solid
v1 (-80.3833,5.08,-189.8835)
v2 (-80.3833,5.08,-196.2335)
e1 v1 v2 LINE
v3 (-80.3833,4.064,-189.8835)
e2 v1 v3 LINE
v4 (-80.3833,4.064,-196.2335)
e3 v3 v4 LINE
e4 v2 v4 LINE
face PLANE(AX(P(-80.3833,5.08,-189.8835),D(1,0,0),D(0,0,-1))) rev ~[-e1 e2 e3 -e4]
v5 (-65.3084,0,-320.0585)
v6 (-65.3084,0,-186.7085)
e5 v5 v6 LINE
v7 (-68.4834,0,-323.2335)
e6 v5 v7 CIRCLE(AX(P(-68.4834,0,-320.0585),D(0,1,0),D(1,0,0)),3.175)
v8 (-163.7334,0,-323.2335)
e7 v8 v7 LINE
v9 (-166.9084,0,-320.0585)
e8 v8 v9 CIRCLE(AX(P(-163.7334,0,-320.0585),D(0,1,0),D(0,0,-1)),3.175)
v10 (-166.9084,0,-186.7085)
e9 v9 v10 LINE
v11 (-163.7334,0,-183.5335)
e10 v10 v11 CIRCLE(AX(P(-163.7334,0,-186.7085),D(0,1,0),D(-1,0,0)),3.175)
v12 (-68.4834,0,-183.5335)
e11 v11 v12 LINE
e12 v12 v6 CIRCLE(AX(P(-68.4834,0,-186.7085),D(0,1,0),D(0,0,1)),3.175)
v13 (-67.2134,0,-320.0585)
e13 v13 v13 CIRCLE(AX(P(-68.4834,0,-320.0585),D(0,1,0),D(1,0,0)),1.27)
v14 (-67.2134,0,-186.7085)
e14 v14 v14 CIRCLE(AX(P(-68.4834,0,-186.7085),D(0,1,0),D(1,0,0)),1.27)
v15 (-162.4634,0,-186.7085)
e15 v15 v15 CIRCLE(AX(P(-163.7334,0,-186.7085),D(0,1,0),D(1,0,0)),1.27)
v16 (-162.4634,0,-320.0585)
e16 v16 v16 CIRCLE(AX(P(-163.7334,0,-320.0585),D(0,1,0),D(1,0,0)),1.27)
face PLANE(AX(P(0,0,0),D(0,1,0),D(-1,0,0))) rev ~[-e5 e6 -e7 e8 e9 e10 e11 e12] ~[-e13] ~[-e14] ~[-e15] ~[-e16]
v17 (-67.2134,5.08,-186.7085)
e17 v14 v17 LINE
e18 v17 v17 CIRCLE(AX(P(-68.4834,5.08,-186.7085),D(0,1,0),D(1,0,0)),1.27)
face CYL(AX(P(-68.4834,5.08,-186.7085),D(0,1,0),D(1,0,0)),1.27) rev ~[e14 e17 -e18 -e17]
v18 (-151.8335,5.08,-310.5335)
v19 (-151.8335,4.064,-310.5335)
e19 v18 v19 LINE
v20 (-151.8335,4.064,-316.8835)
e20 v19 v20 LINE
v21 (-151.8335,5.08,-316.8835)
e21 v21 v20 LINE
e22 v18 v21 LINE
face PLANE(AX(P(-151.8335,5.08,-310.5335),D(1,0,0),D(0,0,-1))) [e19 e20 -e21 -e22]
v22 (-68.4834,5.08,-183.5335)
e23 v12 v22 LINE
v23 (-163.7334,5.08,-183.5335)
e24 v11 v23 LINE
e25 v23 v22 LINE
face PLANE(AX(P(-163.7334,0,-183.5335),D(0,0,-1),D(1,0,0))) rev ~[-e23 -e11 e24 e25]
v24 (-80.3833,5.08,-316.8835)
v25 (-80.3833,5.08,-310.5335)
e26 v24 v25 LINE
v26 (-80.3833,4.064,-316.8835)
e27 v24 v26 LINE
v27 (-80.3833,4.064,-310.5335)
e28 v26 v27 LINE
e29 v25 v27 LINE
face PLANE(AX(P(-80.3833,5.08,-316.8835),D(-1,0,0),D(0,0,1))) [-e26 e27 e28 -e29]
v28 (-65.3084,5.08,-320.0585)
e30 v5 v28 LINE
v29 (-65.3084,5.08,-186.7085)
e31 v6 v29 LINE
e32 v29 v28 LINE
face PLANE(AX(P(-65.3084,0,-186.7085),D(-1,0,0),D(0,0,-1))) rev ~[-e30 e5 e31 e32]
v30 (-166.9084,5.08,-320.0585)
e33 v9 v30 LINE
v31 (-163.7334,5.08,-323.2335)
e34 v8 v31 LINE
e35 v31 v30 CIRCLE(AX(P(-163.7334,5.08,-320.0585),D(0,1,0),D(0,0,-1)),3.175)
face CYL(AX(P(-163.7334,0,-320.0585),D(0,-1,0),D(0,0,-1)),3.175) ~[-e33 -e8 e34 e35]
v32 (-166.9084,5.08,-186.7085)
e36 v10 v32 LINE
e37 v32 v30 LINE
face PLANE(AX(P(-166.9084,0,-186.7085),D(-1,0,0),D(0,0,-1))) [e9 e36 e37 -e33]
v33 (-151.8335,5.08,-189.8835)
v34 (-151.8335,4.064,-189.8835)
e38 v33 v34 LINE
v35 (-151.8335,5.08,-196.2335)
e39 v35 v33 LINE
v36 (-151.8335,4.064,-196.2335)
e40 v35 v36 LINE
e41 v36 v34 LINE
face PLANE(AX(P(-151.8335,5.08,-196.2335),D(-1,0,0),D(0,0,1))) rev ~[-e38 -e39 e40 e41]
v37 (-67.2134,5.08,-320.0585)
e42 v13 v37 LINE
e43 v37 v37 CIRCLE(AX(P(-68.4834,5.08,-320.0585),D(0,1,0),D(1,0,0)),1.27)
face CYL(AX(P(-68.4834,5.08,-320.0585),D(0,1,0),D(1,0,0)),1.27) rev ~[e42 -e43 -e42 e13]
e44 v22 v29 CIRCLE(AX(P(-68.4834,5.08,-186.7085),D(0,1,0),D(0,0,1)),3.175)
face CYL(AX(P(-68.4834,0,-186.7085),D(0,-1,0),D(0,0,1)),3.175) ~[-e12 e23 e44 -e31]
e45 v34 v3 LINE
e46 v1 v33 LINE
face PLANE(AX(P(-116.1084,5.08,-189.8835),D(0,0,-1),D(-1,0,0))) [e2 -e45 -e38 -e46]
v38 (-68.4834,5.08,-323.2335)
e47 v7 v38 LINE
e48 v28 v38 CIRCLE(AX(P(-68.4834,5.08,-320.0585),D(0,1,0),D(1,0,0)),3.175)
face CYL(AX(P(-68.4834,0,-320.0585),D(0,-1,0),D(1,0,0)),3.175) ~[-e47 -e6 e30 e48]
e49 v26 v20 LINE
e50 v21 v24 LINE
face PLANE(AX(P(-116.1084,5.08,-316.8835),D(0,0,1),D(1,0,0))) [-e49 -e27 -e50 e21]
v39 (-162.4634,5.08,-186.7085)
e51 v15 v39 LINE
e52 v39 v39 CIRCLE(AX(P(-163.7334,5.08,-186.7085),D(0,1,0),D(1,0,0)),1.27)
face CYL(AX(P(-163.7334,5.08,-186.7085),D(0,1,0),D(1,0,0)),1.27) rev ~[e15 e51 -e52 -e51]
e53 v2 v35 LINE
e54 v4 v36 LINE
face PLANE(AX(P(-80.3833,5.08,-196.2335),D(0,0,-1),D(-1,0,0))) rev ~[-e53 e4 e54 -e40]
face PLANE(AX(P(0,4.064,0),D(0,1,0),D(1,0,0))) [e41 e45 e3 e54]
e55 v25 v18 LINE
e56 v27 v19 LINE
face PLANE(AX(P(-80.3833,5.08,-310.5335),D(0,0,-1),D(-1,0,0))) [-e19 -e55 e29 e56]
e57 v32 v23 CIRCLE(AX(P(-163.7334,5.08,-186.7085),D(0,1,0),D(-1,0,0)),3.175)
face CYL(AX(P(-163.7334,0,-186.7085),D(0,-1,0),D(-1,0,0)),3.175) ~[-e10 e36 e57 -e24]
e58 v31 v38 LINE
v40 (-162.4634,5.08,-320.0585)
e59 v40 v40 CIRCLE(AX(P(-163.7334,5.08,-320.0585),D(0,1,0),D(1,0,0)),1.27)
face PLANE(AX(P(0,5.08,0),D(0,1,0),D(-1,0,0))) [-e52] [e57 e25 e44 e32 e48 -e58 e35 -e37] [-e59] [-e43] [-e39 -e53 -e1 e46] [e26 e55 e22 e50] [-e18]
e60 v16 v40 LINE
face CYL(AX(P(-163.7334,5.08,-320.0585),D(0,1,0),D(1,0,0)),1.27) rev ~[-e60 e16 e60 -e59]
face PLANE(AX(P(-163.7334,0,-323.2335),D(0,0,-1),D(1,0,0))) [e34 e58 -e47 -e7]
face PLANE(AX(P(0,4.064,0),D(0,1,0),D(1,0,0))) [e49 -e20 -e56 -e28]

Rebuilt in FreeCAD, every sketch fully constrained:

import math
import FreeCAD as App
import Part
import Sketcher
Q = App.Units.Quantity

doc = App.newDocument("Part")
body = doc.addObject("PartDesign::Body", "Body")

# Sketch on XZ plane
sketch1 = body.newObject("Sketcher::SketchObject", "Sketch")
sketch1.AttachmentSupport = (doc.getObject("XZ_Plane"), [""])
sketch1.MapMode = "FlatFace"
sketch1.addGeometry([
    Part.ArcOfCircle(Part.Circle(App.Vector(-163.7334, -186.7085, 0), App.Vector(0, 0, 1), 3.175), math.radians(90), math.radians(180)),  # 0
    Part.LineSegment(App.Vector(-163.7334, -183.5335, 0), App.Vector(-68.4834, -183.5335, 0)),  # 1
    Part.ArcOfCircle(Part.Circle(App.Vector(-68.4834, -186.7085, 0), App.Vector(0, 0, 1), 3.175), math.radians(0), math.radians(90)),  # 2
    Part.LineSegment(App.Vector(-65.3084, -186.7085, 0), App.Vector(-65.3084, -320.0585, 0)),  # 3
    Part.ArcOfCircle(Part.Circle(App.Vector(-68.4834, -320.0585, 0), App.Vector(0, 0, 1), 3.175), math.radians(-90), math.radians(0)),  # 4
    Part.LineSegment(App.Vector(-68.4834, -323.2335, 0), App.Vector(-163.7334, -323.2335, 0)),  # 5
    Part.ArcOfCircle(Part.Circle(App.Vector(-163.7334, -320.0585, 0), App.Vector(0, 0, 1), 3.175), math.radians(180), math.radians(270)),  # 6
    Part.LineSegment(App.Vector(-166.9084, -320.0585, 0), App.Vector(-166.9084, -186.7085, 0)),  # 7
], False)
sketch1.addConstraint([
    Sketcher.Constraint("Tangent", 0, 1, 1, 1),
    Sketcher.Constraint("Tangent", 1, 2, 2, 2),
    Sketcher.Constraint("Tangent", 2, 1, 3, 1),
    Sketcher.Constraint("Tangent", 3, 2, 4, 2),
    Sketcher.Constraint("Tangent", 4, 1, 5, 1),
    Sketcher.Constraint("Tangent", 5, 2, 6, 2),
    Sketcher.Constraint("Tangent", 6, 1, 7, 1),
    Sketcher.Constraint("Tangent", 7, 2, 0, 2),
    Sketcher.Constraint("Horizontal", 1),
    Sketcher.Constraint("Vertical", 3),
    Sketcher.Constraint("Horizontal", 5),
    Sketcher.Constraint("Vertical", 7),
    Sketcher.Constraint("Equal", 0, 2),
    Sketcher.Constraint("Equal", 2, 4),
    Sketcher.Constraint("Equal", 4, 6),
    Sketcher.Constraint("Radius", 0, Q("0.125 in")),
    Sketcher.Constraint("DistanceX", 6, 1, 3, 2, Q("4 in")),
    Sketcher.Constraint("DistanceY", 3, 2, 3, 1, Q("5.25 in")),
    Sketcher.Constraint("DistanceX", 0, 3, -1, 1, Q("6.4462 in")),
    Sketcher.Constraint("DistanceY", 0, 3, -1, 1, 186.7085),
])
pad1 = body.newObject("PartDesign::Pad", "Pad")
pad1.Profile = sketch1
pad1.Length = Q("0.2 in")
pad1.Reversed = True

# Sketch on XZ plane
sketch2 = body.newObject("Sketcher::SketchObject", "Sketch001")
sketch2.AttachmentSupport = (doc.getObject("XZ_Plane"), [""])
sketch2.MapMode = "FlatFace"
sketch2.AttachmentOffset = App.Placement(App.Vector(0, 0, -0.2 * 25.4), App.Rotation())
sketch2.addGeometry([
    Part.Circle(App.Vector(-163.7334, -186.7085, 0), App.Vector(0, 0, 1), 1.27),
    Part.Circle(App.Vector(-68.4834, -186.7085, 0), App.Vector(0, 0, 1), 1.27),
    Part.Circle(App.Vector(-163.7334, -320.0585, 0), App.Vector(0, 0, 1), 1.27),
    Part.Circle(App.Vector(-68.4834, -320.0585, 0), App.Vector(0, 0, 1), 1.27),
], False)
sketch2.addConstraint([
    Sketcher.Constraint("Equal", 0, 1),
    Sketcher.Constraint("Equal", 1, 2),
    Sketcher.Constraint("Equal", 2, 3),
    Sketcher.Constraint("Horizontal", 0, 3, 1, 3),
    Sketcher.Constraint("Horizontal", 2, 3, 3, 3),
    Sketcher.Constraint("Vertical", 0, 3, 2, 3),
    Sketcher.Constraint("Vertical", 1, 3, 3, 3),
    Sketcher.Constraint("Diameter", 0, Q("0.1 in")),
    Sketcher.Constraint("DistanceX", 0, 3, 1, 3, Q("3.75 in")),
    Sketcher.Constraint("DistanceY", 2, 3, 0, 3, Q("5.25 in")),
    Sketcher.Constraint("DistanceX", 0, 3, -1, 1, Q("6.4462 in")),
    Sketcher.Constraint("DistanceY", 0, 3, -1, 1, 186.7085),
])
pocket1 = body.newObject("PartDesign::Pocket", "Pocket")
pocket1.Profile = sketch2
pocket1.Length = Q("1 in")
pocket1.Midplane = True

# Sketch on XZ plane
sketch3 = body.newObject("Sketcher::SketchObject", "Sketch002")
sketch3.AttachmentSupport = (doc.getObject("XZ_Plane"), [""])
sketch3.MapMode = "FlatFace"
sketch3.AttachmentOffset = App.Placement(App.Vector(0, 0, -0.2 * 25.4), App.Rotation())
sketch3.addGeometry([
    Part.LineSegment(App.Vector(-80.3833, -316.8835, 0), App.Vector(-151.8335, -316.8835, 0)),  # 0
    Part.LineSegment(App.Vector(-151.8335, -316.8835, 0), App.Vector(-151.8335, -310.5335, 0)),  # 1
    Part.LineSegment(App.Vector(-151.8335, -310.5335, 0), App.Vector(-80.3833, -310.5335, 0)),  # 2
    Part.LineSegment(App.Vector(-80.3833, -310.5335, 0), App.Vector(-80.3833, -316.8835, 0)),  # 3
    Part.LineSegment(App.Vector(-151.8335, -189.8835, 0), App.Vector(-80.3833, -189.8835, 0)),  # 4
    Part.LineSegment(App.Vector(-80.3833, -189.8835, 0), App.Vector(-80.3833, -196.2335, 0)),  # 5
    Part.LineSegment(App.Vector(-80.3833, -196.2335, 0), App.Vector(-151.8335, -196.2335, 0)),  # 6
    Part.LineSegment(App.Vector(-151.8335, -196.2335, 0), App.Vector(-151.8335, -189.8835, 0)),  # 7
], False)
sketch3.addConstraint([
    Sketcher.Constraint("Coincident", 0, 2, 1, 1),
    Sketcher.Constraint("Coincident", 1, 2, 2, 1),
    Sketcher.Constraint("Coincident", 2, 2, 3, 1),
    Sketcher.Constraint("Coincident", 3, 2, 0, 1),
    Sketcher.Constraint("Coincident", 4, 2, 5, 1),
    Sketcher.Constraint("Coincident", 5, 2, 6, 1),
    Sketcher.Constraint("Coincident", 6, 2, 7, 1),
    Sketcher.Constraint("Coincident", 7, 2, 4, 1),
    Sketcher.Constraint("Horizontal", 0),
    Sketcher.Constraint("Vertical", 1),
    Sketcher.Constraint("Horizontal", 2),
    Sketcher.Constraint("Vertical", 3),
    Sketcher.Constraint("Horizontal", 4),
    Sketcher.Constraint("Vertical", 5),
    Sketcher.Constraint("Horizontal", 6),
    Sketcher.Constraint("Vertical", 7),
    Sketcher.Constraint("Vertical", 3, 2, 4, 2),
    Sketcher.Constraint("Vertical", 1, 2, 6, 2),
    Sketcher.Constraint("Equal", 3, 5),
    Sketcher.Constraint("DistanceY", 3, 2, 4, 2, Q("5 in")),
    Sketcher.Constraint("DistanceY", 1, 1, 1, 2, Q("0.25 in")),
    Sketcher.Constraint("DistanceX", 0, 2, 0, 1, Q("2.813 in")),
    Sketcher.Constraint("DistanceX", 0, 2, -1, 1, Q("5.9777 in")),
    Sketcher.Constraint("DistanceY", 0, 2, -1, 1, 316.8835),
])
pocket2 = body.newObject("PartDesign::Pocket", "Pocket001")
pocket2.Profile = sketch3
pocket2.Length = Q("0.04 in")
pocket2.Reversed = True

doc.recompute()
